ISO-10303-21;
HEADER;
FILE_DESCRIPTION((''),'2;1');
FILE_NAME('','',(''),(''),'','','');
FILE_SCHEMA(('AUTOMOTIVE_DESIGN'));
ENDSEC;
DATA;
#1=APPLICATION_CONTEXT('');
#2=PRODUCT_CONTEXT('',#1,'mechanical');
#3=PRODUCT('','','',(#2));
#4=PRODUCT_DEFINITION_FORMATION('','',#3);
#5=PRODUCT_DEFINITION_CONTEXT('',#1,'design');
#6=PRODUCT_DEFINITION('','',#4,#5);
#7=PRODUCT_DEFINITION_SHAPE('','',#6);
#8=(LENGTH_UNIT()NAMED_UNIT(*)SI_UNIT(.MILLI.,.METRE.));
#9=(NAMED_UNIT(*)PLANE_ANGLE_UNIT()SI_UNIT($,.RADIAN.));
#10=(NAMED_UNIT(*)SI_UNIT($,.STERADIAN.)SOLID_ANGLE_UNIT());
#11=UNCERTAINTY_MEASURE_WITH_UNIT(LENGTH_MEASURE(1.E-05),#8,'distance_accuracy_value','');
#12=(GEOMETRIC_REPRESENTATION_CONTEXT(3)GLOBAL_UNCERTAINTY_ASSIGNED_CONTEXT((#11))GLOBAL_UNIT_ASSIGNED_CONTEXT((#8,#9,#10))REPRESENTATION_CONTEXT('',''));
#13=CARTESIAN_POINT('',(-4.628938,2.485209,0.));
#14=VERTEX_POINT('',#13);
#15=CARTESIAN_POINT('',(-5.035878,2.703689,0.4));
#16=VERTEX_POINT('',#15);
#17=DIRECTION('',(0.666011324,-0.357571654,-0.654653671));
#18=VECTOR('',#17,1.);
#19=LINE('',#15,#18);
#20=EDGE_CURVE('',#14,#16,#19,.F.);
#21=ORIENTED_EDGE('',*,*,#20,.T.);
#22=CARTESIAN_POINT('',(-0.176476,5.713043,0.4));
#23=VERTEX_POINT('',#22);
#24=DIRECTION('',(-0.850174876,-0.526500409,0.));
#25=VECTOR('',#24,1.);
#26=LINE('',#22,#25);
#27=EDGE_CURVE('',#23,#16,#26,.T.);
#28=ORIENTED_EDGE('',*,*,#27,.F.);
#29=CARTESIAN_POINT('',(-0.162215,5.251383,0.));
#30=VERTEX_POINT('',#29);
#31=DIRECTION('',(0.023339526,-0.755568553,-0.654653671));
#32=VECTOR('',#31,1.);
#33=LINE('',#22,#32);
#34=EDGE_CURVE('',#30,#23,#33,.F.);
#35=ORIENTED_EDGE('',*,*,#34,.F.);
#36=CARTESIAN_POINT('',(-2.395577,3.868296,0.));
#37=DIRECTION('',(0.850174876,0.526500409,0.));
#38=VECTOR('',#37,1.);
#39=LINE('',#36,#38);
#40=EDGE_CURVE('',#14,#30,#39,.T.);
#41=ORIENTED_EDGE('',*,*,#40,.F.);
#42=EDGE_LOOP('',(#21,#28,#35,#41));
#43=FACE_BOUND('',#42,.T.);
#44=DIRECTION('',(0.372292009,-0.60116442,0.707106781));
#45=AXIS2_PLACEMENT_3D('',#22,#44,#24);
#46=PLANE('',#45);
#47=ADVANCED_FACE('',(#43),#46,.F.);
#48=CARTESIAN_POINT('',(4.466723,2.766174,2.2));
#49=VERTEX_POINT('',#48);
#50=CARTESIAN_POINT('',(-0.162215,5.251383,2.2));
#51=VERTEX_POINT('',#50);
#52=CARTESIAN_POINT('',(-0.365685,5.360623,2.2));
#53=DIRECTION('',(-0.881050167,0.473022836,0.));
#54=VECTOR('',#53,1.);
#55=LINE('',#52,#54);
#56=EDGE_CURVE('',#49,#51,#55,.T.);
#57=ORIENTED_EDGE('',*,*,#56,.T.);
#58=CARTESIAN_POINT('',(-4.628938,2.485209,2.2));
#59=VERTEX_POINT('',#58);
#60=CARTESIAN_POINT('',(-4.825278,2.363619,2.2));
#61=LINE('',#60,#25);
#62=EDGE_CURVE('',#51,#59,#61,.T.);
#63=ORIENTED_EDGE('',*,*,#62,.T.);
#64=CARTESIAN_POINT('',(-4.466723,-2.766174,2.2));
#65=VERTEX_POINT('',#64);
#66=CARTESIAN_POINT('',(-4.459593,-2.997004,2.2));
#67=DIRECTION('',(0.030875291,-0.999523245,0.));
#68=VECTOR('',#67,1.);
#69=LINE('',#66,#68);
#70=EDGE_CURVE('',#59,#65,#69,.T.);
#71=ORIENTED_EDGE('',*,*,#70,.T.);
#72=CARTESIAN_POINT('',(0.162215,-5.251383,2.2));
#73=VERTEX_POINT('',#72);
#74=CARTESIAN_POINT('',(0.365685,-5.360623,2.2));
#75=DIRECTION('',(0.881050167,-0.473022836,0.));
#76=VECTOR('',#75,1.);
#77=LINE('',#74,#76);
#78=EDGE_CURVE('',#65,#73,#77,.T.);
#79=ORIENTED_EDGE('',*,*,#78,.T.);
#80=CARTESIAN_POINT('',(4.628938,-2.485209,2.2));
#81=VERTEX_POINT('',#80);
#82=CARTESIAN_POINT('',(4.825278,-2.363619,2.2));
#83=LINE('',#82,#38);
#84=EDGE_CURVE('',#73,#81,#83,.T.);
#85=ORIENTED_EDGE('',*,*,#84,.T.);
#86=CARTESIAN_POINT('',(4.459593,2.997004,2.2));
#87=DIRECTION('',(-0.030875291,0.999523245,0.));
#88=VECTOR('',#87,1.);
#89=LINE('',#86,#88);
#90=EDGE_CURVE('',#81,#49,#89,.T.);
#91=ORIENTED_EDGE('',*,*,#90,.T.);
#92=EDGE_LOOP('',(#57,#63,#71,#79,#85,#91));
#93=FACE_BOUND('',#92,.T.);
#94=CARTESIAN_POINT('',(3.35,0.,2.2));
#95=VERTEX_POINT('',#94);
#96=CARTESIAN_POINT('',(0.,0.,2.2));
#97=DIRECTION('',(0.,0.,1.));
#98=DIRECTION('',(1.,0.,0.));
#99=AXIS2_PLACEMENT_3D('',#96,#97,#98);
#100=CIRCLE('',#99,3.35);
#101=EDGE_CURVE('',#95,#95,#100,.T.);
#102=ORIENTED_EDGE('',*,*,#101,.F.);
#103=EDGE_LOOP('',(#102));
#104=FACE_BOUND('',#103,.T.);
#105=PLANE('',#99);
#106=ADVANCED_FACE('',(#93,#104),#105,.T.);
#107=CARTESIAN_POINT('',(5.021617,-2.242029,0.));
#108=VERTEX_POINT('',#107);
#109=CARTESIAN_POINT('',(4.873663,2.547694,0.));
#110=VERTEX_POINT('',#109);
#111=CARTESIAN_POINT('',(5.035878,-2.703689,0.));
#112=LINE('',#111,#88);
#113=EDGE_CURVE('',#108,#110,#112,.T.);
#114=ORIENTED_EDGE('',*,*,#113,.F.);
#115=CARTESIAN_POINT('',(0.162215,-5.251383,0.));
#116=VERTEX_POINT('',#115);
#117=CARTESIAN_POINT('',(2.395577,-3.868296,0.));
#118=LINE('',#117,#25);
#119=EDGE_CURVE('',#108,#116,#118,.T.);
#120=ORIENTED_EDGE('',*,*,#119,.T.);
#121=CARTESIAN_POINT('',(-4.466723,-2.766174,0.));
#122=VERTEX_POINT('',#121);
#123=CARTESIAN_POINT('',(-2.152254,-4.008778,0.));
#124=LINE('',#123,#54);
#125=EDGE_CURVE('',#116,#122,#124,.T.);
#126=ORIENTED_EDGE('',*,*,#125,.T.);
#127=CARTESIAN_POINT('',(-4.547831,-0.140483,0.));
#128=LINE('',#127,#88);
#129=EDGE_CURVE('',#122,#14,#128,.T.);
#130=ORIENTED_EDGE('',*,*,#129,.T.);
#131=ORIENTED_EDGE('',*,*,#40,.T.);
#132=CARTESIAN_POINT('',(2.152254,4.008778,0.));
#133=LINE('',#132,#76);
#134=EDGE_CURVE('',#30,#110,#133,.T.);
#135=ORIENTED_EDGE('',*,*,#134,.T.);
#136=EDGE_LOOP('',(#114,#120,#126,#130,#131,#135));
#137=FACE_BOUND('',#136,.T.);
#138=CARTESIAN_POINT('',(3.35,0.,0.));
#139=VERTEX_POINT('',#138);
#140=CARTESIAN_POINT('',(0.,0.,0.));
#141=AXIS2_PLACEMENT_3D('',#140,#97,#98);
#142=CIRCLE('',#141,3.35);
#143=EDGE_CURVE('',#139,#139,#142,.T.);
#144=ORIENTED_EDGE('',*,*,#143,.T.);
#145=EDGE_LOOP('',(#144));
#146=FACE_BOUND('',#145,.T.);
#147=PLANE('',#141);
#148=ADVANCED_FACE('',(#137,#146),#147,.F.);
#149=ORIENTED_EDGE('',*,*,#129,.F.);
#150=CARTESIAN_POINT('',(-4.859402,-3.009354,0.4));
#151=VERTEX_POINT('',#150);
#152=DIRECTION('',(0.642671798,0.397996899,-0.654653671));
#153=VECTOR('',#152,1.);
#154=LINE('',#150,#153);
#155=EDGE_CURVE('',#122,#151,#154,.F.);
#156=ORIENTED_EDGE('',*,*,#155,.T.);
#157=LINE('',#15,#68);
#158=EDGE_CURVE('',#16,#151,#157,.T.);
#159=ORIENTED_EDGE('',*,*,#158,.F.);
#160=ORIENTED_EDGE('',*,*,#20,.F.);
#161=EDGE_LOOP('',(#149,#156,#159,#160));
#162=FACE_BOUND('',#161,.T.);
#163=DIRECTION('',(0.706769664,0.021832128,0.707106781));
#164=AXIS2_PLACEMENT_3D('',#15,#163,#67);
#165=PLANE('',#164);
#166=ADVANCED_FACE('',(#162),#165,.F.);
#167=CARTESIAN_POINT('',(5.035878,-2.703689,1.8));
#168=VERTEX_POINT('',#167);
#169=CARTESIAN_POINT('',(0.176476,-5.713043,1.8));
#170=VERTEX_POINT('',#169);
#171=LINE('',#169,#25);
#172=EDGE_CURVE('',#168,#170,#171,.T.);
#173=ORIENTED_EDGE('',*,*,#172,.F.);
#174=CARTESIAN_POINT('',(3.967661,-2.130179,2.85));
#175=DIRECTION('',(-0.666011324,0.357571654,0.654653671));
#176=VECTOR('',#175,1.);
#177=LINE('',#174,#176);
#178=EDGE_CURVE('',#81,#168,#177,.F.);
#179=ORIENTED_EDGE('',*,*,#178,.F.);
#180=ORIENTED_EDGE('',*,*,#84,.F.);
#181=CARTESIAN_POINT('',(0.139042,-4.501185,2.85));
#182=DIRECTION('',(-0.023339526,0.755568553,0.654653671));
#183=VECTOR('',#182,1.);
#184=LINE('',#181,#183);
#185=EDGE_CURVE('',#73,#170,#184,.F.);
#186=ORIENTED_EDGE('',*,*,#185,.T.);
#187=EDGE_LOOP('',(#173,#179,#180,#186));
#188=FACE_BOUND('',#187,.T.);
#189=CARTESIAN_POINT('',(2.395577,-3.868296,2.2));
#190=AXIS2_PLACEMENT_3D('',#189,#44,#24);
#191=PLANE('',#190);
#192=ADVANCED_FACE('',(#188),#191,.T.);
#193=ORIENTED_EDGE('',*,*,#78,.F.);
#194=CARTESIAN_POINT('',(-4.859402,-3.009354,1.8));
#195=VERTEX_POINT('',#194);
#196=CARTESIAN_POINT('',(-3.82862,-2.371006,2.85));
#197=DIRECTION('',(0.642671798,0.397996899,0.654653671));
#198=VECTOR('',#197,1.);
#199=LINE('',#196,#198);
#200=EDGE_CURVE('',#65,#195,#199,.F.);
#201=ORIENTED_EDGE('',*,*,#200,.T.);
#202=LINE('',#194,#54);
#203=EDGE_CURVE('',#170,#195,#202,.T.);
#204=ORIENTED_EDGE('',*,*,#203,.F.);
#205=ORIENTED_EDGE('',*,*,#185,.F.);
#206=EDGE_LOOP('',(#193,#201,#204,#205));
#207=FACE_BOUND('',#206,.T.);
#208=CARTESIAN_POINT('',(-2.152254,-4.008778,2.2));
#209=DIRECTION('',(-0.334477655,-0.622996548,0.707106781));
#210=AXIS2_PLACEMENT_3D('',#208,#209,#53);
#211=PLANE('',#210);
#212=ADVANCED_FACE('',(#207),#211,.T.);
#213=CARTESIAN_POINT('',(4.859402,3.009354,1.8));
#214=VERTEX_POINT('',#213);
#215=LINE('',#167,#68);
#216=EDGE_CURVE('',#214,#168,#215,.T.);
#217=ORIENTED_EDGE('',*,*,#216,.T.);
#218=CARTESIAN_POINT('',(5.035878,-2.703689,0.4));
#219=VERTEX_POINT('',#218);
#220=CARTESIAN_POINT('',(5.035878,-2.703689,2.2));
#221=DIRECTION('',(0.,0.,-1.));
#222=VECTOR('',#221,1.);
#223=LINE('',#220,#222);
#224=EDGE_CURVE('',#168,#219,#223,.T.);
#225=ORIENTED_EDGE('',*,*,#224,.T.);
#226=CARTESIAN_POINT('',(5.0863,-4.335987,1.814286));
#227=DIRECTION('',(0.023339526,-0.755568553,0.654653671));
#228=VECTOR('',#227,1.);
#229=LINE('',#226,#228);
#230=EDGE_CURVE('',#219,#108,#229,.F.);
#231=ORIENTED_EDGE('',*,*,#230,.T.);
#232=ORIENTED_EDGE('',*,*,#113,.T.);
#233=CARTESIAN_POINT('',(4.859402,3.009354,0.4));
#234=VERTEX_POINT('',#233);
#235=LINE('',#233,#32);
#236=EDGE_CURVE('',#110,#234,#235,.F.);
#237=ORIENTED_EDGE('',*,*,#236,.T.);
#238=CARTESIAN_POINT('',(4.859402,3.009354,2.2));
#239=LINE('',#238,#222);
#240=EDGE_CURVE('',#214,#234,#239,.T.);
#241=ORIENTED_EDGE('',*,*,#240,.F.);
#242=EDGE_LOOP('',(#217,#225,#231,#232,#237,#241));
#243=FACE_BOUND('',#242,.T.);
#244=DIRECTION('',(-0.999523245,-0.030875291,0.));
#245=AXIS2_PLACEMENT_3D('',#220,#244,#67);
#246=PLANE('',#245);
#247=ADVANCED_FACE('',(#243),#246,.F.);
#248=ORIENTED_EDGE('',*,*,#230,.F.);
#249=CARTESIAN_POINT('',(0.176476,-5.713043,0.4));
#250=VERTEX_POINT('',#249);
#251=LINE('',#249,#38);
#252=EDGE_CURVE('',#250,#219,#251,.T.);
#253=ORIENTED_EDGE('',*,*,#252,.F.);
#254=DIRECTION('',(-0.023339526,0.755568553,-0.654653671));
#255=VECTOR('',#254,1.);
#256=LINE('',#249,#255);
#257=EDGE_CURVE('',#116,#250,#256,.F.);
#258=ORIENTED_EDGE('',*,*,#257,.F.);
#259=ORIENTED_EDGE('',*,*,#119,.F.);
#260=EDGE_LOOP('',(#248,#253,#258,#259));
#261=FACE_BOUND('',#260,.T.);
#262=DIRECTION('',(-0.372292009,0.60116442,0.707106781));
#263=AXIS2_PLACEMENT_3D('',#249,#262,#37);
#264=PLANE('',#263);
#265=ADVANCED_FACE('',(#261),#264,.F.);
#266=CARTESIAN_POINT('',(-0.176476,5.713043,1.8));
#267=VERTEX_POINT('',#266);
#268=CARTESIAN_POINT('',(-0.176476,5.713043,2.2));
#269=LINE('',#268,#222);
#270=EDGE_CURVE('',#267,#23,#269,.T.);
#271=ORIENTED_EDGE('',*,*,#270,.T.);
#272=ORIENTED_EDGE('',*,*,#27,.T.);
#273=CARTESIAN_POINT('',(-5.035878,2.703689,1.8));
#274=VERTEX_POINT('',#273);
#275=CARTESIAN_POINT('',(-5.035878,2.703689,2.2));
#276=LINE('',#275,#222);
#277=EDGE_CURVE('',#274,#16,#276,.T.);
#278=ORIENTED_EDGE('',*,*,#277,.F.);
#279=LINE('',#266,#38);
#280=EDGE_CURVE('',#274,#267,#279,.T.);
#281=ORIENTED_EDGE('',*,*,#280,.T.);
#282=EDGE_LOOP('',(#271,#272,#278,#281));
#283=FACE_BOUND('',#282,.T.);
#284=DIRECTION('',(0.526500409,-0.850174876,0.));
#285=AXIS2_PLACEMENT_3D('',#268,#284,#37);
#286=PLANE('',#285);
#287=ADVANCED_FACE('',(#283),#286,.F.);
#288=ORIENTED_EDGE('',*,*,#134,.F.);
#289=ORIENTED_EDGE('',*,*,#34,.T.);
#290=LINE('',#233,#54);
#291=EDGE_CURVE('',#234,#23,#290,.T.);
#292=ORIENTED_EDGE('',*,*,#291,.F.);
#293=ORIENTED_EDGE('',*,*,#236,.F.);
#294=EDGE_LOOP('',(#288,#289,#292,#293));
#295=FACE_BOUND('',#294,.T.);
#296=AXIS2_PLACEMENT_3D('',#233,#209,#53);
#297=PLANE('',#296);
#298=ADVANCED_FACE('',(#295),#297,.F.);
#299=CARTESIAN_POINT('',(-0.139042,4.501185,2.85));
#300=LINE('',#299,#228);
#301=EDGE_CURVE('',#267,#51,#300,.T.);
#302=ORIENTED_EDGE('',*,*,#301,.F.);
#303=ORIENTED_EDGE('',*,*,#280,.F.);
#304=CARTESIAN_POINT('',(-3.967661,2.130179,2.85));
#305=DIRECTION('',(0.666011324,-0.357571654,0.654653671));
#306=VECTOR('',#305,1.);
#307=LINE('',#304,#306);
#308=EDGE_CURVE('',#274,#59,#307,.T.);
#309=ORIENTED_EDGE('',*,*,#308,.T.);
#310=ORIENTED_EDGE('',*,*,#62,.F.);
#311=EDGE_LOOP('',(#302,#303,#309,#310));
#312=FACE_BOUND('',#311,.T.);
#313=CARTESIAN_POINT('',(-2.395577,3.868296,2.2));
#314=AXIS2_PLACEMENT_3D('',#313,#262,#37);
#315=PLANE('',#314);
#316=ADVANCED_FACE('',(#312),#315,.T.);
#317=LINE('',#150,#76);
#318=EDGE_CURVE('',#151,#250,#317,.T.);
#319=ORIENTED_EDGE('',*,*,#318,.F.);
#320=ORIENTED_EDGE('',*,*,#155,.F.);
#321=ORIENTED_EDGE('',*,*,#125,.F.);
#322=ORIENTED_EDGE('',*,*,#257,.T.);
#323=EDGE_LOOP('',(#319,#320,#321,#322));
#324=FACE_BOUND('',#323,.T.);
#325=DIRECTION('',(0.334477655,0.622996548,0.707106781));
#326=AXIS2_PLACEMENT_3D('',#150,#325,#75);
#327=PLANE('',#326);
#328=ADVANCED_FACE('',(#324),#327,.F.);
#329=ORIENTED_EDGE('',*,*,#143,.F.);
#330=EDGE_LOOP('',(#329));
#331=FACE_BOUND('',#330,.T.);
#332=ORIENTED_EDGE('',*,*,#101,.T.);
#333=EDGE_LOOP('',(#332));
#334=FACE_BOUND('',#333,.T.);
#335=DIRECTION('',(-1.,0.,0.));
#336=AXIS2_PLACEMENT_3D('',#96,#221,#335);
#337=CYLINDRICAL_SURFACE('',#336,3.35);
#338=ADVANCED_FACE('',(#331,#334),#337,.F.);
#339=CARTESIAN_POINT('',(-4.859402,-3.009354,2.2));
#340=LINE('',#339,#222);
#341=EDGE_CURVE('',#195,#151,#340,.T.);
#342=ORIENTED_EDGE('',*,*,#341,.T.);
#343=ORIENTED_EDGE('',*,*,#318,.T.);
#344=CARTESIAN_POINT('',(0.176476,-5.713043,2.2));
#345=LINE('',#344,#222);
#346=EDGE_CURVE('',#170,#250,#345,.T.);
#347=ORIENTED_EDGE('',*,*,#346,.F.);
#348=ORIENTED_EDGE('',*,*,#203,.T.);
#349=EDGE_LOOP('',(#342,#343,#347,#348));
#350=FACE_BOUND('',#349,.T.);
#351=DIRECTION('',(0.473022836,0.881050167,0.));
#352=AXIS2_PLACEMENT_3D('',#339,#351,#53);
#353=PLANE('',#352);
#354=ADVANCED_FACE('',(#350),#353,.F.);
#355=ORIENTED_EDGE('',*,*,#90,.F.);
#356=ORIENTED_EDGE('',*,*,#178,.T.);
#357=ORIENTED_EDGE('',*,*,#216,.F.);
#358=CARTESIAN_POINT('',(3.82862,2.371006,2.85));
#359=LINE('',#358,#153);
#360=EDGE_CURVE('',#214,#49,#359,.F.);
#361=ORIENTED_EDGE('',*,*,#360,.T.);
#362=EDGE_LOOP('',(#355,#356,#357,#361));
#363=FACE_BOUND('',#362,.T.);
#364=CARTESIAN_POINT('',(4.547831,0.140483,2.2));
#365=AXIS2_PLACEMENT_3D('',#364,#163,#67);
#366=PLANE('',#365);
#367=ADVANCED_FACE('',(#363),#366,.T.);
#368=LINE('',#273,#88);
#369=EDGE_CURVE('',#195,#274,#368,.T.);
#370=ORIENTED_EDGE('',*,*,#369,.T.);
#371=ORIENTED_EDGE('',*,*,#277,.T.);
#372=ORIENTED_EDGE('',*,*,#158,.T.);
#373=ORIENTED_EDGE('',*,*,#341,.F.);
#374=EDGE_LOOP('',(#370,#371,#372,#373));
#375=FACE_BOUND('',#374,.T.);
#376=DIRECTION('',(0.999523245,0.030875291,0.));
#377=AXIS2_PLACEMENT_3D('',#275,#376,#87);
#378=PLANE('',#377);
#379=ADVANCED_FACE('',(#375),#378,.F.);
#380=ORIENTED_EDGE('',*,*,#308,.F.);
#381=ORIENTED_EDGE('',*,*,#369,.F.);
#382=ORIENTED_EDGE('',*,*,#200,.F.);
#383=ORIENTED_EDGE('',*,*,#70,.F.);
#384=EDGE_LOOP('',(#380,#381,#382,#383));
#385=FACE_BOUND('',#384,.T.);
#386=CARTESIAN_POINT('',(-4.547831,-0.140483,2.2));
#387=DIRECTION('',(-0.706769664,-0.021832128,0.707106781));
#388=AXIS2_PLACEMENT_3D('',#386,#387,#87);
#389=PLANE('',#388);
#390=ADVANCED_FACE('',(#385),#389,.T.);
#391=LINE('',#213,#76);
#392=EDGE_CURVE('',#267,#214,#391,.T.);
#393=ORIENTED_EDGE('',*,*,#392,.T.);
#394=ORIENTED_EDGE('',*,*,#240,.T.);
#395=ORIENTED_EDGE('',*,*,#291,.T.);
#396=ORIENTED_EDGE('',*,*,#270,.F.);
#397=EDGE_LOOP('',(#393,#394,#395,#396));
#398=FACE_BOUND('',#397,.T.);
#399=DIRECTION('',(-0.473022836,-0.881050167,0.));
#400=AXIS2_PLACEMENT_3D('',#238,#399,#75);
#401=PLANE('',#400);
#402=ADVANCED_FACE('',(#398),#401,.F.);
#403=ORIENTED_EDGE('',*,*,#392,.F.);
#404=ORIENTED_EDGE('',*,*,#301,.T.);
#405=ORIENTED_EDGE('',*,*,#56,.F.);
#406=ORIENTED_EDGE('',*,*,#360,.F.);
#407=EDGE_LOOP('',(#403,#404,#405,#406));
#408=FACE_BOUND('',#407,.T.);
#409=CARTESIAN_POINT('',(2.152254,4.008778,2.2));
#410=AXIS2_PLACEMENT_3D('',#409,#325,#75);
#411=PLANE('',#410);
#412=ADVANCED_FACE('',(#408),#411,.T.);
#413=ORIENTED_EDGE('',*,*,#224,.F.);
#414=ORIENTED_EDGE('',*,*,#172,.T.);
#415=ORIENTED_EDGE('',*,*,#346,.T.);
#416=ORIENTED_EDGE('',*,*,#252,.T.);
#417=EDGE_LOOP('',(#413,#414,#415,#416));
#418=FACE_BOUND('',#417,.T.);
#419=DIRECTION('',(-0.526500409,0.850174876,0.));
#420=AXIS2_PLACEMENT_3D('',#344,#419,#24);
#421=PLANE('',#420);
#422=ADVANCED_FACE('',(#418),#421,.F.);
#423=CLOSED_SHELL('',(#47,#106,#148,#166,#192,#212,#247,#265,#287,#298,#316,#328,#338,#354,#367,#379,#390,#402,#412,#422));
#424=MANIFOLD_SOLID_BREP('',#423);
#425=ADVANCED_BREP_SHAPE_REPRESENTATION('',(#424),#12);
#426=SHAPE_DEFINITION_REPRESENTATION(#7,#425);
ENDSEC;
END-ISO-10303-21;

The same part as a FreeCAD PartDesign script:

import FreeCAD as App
import Part
import Sketcher
from FreeCAD import Vector


def edges_at(feature, points):
    """Names of the edges that pass closest to the given points."""
    edges = feature.Shape.Edges
    near = lambda p: min(range(len(edges)), key=lambda i: edges[i].distToShape(Part.Vertex(*p))[0])
    return sorted({f"Edge{near(p) + 1}" for p in points})


def add_polygon(sketch, points):
    """Adds a closed chain of lines whose ends are joined by coincident constraints."""
    first, n = sketch.GeometryCount, len(points)
    for a, b in zip(points, points[1:] + points[:1]):
        sketch.addGeometry(Part.LineSegment(App.Vector(*a, 0), App.Vector(*b, 0)), False)
    for i in range(n):
        sketch.addConstraint(Sketcher.Constraint("Coincident", first + i, 2, first + (i + 1) % n, 1))

doc = App.newDocument("Part")
body = doc.addObject("PartDesign::Body", "Body")

sketch1 = doc.addObject("Sketcher::SketchObject", "Sketch")
body.addObject(sketch1)
sketch1.AttachmentSupport = (doc.XY_Plane, [""])
sketch1.MapMode = "FlatFace"
add_polygon(sketch1, [(5.035878, -2.703689), (4.859402, 3.009354), (-0.176476, 5.713043), (-5.035878, 2.703689), (-4.859402, -3.009354), (0.176476, -5.713043)])
sketch1.addGeometry(Part.Circle(Vector(0, 0, 0), Vector(0, 0, 1), 3.35), False)
sketch1.addConstraint(Sketcher.Constraint("Coincident", 6, 3, -1, 1))
sketch1.addConstraint(Sketcher.Constraint("Symmetric", 0, 2, 3, 2, -1, 1))
sketch1.addConstraint(Sketcher.Constraint("Symmetric", 1, 2, 4, 2, -1, 1))
sketch1.addConstraint(Sketcher.Constraint("Symmetric", 2, 2, 5, 2, -1, 1))
sketch1.addConstraint(Sketcher.Constraint("Equal", 0, 1))
sketch1.addConstraint(Sketcher.Constraint("Equal", 1, 2))
sketch1.addConstraint(Sketcher.Constraint("Diameter", 6, 6.7))
sketch1.addConstraint(Sketcher.Constraint("DistanceX", 2, 2, -1, 1, 5.035878))
sketch1.addConstraint(Sketcher.Constraint("DistanceY", -1, 1, 2, 2, 2.703689))
sketch1.addConstraint(Sketcher.Constraint("DistanceX", 1, 2, 0, 2, 5.035878))
sketch1.addConstraint(Sketcher.Constraint("DistanceY", 0, 2, 1, 2, 2.703689))
pad1 = doc.addObject("PartDesign::Pad", "Pad")
body.addObject(pad1)
pad1.Profile = sketch1
pad1.Length = 2.2
doc.recompute()

chamfer = doc.addObject("PartDesign::Chamfer", "Chamfer")
body.addObject(chamfer)
chamfer.Base = (pad1, edges_at(pad1, [
    (2.341, 4.361, 2.2),
    (-2.606, 4.208, 2.2),
    (-4.948, -0.153, 2.2),
    (-2.341, -4.361, 2.2),
    (2.606, -4.208, 2.2),
    (-2.341, -4.361, 0),
    (-4.948, -0.153, 0),
    (-2.606, 4.208, 0),
    (4.948, 0.153, 2.2),
    (2.341, 4.361, 0),
    (2.606, -4.208, 0),
]))
chamfer.Size = 0.4

doc.recompute()
